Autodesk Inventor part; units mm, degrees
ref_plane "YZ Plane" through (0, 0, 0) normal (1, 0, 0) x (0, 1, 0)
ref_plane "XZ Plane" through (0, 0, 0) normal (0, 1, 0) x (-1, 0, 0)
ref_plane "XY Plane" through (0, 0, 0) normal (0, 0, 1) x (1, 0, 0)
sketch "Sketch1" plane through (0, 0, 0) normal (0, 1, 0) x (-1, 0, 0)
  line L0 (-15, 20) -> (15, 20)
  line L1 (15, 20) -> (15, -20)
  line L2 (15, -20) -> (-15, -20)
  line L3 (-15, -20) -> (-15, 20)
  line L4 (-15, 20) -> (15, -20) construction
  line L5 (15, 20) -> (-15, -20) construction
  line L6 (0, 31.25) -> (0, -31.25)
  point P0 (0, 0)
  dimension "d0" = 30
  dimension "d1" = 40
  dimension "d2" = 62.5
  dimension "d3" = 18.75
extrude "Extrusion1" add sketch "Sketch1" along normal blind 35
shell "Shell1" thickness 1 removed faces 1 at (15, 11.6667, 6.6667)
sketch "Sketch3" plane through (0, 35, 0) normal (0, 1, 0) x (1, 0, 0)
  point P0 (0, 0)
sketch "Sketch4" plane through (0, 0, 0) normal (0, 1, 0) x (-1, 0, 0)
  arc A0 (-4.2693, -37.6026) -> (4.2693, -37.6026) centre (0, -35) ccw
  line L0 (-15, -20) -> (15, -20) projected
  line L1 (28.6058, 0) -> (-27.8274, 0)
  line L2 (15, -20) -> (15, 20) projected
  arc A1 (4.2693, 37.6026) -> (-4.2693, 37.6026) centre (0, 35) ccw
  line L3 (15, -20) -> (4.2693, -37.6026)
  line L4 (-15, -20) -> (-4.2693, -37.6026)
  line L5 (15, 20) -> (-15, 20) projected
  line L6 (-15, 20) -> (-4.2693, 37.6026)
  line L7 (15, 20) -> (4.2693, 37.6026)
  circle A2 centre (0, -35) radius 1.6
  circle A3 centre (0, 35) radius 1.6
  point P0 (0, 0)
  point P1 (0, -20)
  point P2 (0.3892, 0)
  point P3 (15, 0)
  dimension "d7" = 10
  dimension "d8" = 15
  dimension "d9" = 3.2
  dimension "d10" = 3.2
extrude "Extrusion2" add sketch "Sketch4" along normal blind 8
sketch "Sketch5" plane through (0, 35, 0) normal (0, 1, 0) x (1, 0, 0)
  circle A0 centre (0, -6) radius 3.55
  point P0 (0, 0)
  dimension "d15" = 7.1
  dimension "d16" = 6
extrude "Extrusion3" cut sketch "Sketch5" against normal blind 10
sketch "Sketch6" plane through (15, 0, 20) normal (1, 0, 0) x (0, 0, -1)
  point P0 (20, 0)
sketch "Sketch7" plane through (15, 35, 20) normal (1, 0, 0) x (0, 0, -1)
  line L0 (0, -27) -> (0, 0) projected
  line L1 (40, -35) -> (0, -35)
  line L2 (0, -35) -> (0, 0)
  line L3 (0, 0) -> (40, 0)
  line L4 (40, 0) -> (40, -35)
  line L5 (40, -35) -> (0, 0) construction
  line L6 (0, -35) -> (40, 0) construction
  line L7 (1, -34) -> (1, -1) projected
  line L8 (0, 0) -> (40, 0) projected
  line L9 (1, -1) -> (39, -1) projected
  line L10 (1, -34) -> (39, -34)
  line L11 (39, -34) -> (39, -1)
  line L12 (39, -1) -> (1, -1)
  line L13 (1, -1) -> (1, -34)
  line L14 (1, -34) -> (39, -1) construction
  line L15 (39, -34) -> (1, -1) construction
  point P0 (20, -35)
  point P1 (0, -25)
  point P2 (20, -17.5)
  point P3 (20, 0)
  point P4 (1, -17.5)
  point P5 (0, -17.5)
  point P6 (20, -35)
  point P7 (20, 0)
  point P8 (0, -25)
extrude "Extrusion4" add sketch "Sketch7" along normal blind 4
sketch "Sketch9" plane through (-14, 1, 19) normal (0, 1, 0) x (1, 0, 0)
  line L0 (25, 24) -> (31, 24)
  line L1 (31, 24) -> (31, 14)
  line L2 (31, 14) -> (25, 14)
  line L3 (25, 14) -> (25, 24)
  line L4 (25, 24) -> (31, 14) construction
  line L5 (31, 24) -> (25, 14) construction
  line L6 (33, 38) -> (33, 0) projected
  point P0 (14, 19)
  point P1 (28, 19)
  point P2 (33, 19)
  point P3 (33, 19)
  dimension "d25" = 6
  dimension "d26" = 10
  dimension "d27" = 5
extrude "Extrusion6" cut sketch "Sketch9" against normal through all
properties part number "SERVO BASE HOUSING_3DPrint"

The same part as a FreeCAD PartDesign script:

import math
import FreeCAD as App
import Part
import Sketcher


def faces_at(feature, points):
    """Names of the faces that lie closest to the given points."""
    faces = feature.Shape.Faces
    near = lambda p: min(range(len(faces)), key=lambda i: faces[i].distToShape(Part.Vertex(*p))[0])
    return sorted({f"Face{near(p) + 1}" for p in points})

doc = App.newDocument("Part")
body = doc.addObject("PartDesign::Body", "Body")

sketch1 = body.newObject("Sketcher::SketchObject", "Sketch")
sketch1.AttachmentSupport = (doc.getObject("XZ_Plane"), [""])
sketch1.MapMode = "FlatFace"
sketch1.addGeometry([
    Part.LineSegment(App.Vector(15, 20, 0), App.Vector(15, -20, 0)),
    Part.LineSegment(App.Vector(15, -20, 0), App.Vector(-15, -20, 0)),
    Part.LineSegment(App.Vector(-15, -20, 0), App.Vector(-15, 20, 0)),
    Part.LineSegment(App.Vector(-15, 20, 0), App.Vector(15, 20, 0)),
], False)
sketch1.addConstraint([
    Sketcher.Constraint("Coincident", 0, 2, 1, 1),
    Sketcher.Constraint("Coincident", 1, 2, 2, 1),
    Sketcher.Constraint("Coincident", 2, 2, 3, 1),
    Sketcher.Constraint("Coincident", 3, 2, 0, 1),
    Sketcher.Constraint("Vertical", 0),
    Sketcher.Constraint("Horizontal", 1),
    Sketcher.Constraint("Vertical", 2),
    Sketcher.Constraint("Horizontal", 3),
    Sketcher.Constraint("Symmetric", 0, 2, 2, 2, -1, 1),
    Sketcher.Constraint("DistanceX", 1, 2, 1, 1, 30.0),
    Sketcher.Constraint("DistanceY", 0, 2, 0, 1, 40.0),
])
pad1 = body.newObject("PartDesign::Pad", "Pad")
pad1.Profile = sketch1
pad1.Length = 35
pad1.Reversed = True
doc.recompute()

thickness = body.newObject("PartDesign::Thickness", "Thickness")
thickness.Base = (pad1, faces_at(pad1, [(15, 11.667, 6.667)]))
thickness.Value = 1
thickness.Reversed = True
thickness.Join = "Intersection"

sketch2 = body.newObject("Sketcher::SketchObject", "Sketch001")
sketch2.AttachmentSupport = (doc.getObject("XZ_Plane"), [""])
sketch2.MapMode = "FlatFace"
sketch2.addGeometry([
    Part.LineSegment(App.Vector(15, -20, 0), App.Vector(4.2693, -37.6026, 0)),
    Part.ArcOfCircle(Part.Circle(App.Vector(0, -35, 0), App.Vector(0, 0, 1), 5.000045), math.radians(-148.633175), math.radians(-31.366825)),
    Part.LineSegment(App.Vector(-4.2693, -37.6026, 0), App.Vector(-15, -20, 0)),
    Part.LineSegment(App.Vector(-15, -20, 0), App.Vector(15, -20, 0)),
    Part.Circle(App.Vector(0, -35, 0), App.Vector(0, 0, 1), 1.6),
    Part.LineSegment(App.Vector(15, 20, 0), App.Vector(-15, 20, 0)),
    Part.LineSegment(App.Vector(-15, 20, 0), App.Vector(-4.2693, 37.6026, 0)),
    Part.ArcOfCircle(Part.Circle(App.Vector(0, 35, 0), App.Vector(0, 0, 1), 5.000045), math.radians(31.366825), math.radians(148.633175)),
    Part.LineSegment(App.Vector(4.2693, 37.6026, 0), App.Vector(15, 20, 0)),
    Part.Circle(App.Vector(0, 35, 0), App.Vector(0, 0, 1), 1.6),
], False)
sketch2.addConstraint([
    Sketcher.Constraint("Tangent", 0, 2, 1, 2),
    Sketcher.Constraint("Tangent", 1, 1, 2, 1),
    Sketcher.Constraint("Coincident", 2, 2, 3, 1),
    Sketcher.Constraint("Coincident", 3, 2, 0, 1),
    Sketcher.Constraint("Coincident", 5, 2, 6, 1),
    Sketcher.Constraint("Tangent", 6, 2, 7, 2),
    Sketcher.Constraint("Tangent", 7, 1, 8, 1),
    Sketcher.Constraint("Coincident", 8, 2, 5, 1),
    Sketcher.Constraint("Horizontal", 3),
    Sketcher.Constraint("Horizontal", 5),
    Sketcher.Constraint("Coincident", 4, 3, 1, 3),
    Sketcher.Constraint("Coincident", 9, 3, 7, 3),
    Sketcher.Constraint("Equal", 1, 7),
    Sketcher.Constraint("Equal", 4, 9),
    Sketcher.Constraint("Symmetric", 1, 3, 7, 3, -1, 1),
    Sketcher.Constraint("Symmetric", 3, 2, 5, 2, -1, 1),
    Sketcher.Constraint("Symmetric", 0, 2, 1, 1, -2),
    Sketcher.Constraint("Parallel", 2, 8),
    Sketcher.Constraint("Radius", 1, 5.0),
    Sketcher.Constraint("Diameter", 4, 3.2),
    Sketcher.Constraint("DistanceX", 2, 2, -1, 1, 15.0),
    Sketcher.Constraint("DistanceY", 1, 3, 2, 2, 15.0),
    Sketcher.Constraint("DistanceY", 1, 3, -1, 1, 35.0),
])
pad2 = body.newObject("PartDesign::Pad", "Pad001")
pad2.Profile = sketch2
pad2.Length = 8
pad2.Reversed = True

sketch3 = body.newObject("Sketcher::SketchObject", "Sketch002")
sketch3.AttachmentSupport = (doc.getObject("XZ_Plane"), [""])
sketch3.MapMode = "FlatFace"
sketch3.AttachmentOffset = App.Placement(App.Vector(0, 0, -35), App.Rotation())
sketch3.addGeometry(Part.Circle(App.Vector(0, 6, 0), App.Vector(0, 0, 1), 3.55), False)
sketch3.addConstraint([
    Sketcher.Constraint("PointOnObject", 0, 3, -2),
    Sketcher.Constraint("Diameter", 0, 7.1),
    Sketcher.Constraint("DistanceY", -1, 1, 0, 3, 6.0),
])
pocket1 = body.newObject("PartDesign::Pocket", "Pocket")
pocket1.Profile = sketch3
pocket1.Length = 10
pocket1.Reversed = True

sketch4 = body.newObject("Sketcher::SketchObject", "Sketch003")
sketch4.AttachmentSupport = (doc.getObject("YZ_Plane"), [""])
sketch4.MapMode = "FlatFace"
sketch4.AttachmentOffset = App.Placement(App.Vector(0, 0, 15), App.Rotation())
sketch4.addGeometry([
    Part.LineSegment(App.Vector(35, 20, 0), App.Vector(0, 20, 0)),
    Part.LineSegment(App.Vector(0, 20, 0), App.Vector(0, -20, 0)),
    Part.LineSegment(App.Vector(0, -20, 0), App.Vector(35, -20, 0)),
    Part.LineSegment(App.Vector(35, -20, 0), App.Vector(35, 20, 0)),
    Part.LineSegment(App.Vector(1, -19, 0), App.Vector(1, 19, 0)),
    Part.LineSegment(App.Vector(1, 19, 0), App.Vector(34, 19, 0)),
    Part.LineSegment(App.Vector(34, 19, 0), App.Vector(34, -19, 0)),
    Part.LineSegment(App.Vector(34, -19, 0), App.Vector(1, -19, 0)),
], False)
sketch4.addConstraint([
    Sketcher.Constraint("Coincident", 0, 2, 1, 1),
    Sketcher.Constraint("Coincident", 1, 2, 2, 1),
    Sketcher.Constraint("Coincident", 2, 2, 3, 1),
    Sketcher.Constraint("Coincident", 3, 2, 0, 1),
    Sketcher.Constraint("Coincident", 4, 2, 5, 1),
    Sketcher.Constraint("Coincident", 5, 2, 6, 1),
    Sketcher.Constraint("Coincident", 6, 2, 7, 1),
    Sketcher.Constraint("Coincident", 7, 2, 4, 1),
    Sketcher.Constraint("Horizontal", 0),
    Sketcher.Constraint("Vertical", 1),
    Sketcher.Constraint("Horizontal", 2),
    Sketcher.Constraint("Vertical", 3),
    Sketcher.Constraint("Vertical", 4),
    Sketcher.Constraint("Horizontal", 5),
    Sketcher.Constraint("Vertical", 6),
    Sketcher.Constraint("Horizontal", 7),
    Sketcher.Constraint("Symmetric", 0, 2, 1, 2, -1, 1),
    Sketcher.Constraint("DistanceX", 0, 2, 0, 1, 35.0),
    Sketcher.Constraint("DistanceX", 5, 1, 5, 2, 33.0),
    Sketcher.Constraint("DistanceY", 1, 2, 1, 1, 40.0),
    Sketcher.Constraint("DistanceY", 4, 1, 4, 2, 38.0),
    Sketcher.Constraint("DistanceX", -1, 1, 4, 2, 1.0),
    Sketcher.Constraint("DistanceY", -1, 1, 4, 2, 19.0),
])
pad3 = body.newObject("PartDesign::Pad", "Pad002")
pad3.Profile = sketch4
pad3.Length = 4

sketch5 = body.newObject("Sketcher::SketchObject", "Sketch004")
sketch5.AttachmentSupport = (doc.getObject("XZ_Plane"), [""])
sketch5.MapMode = "FlatFace"
sketch5.AttachmentOffset = App.Placement(App.Vector(0, 0, -1), App.Rotation())
sketch5.addGeometry([
    Part.LineSegment(App.Vector(17, -5, 0), App.Vector(11, -5, 0)),
    Part.LineSegment(App.Vector(11, -5, 0), App.Vector(11, 5, 0)),
    Part.LineSegment(App.Vector(11, 5, 0), App.Vector(17, 5, 0)),
    Part.LineSegment(App.Vector(17, 5, 0), App.Vector(17, -5, 0)),
], False)
sketch5.addConstraint([
    Sketcher.Constraint("Coincident", 0, 2, 1, 1),
    Sketcher.Constraint("Coincident", 1, 2, 2, 1),
    Sketcher.Constraint("Coincident", 2, 2, 3, 1),
    Sketcher.Constraint("Coincident", 3, 2, 0, 1),
    Sketcher.Constraint("Horizontal", 0),
    Sketcher.Constraint("Vertical", 1),
    Sketcher.Constraint("Horizontal", 2),
    Sketcher.Constraint("Vertical", 3),
    Sketcher.Constraint("DistanceX", 0, 2, 0, 1, 6.0),
    Sketcher.Constraint("DistanceY", 1, 1, 1, 2, 10.0),
    Sketcher.Constraint("DistanceY", 0, 2, -1, 1, 5.0),
    Sketcher.Constraint("DistanceX", -1, 1, 0, 2, 11.0),
])
pocket2 = body.newObject("PartDesign::Pocket", "Pocket001")
pocket2.Profile = sketch5
pocket2.Type = "ThroughAll"
pocket2.Reversed = True

doc.recompute()
